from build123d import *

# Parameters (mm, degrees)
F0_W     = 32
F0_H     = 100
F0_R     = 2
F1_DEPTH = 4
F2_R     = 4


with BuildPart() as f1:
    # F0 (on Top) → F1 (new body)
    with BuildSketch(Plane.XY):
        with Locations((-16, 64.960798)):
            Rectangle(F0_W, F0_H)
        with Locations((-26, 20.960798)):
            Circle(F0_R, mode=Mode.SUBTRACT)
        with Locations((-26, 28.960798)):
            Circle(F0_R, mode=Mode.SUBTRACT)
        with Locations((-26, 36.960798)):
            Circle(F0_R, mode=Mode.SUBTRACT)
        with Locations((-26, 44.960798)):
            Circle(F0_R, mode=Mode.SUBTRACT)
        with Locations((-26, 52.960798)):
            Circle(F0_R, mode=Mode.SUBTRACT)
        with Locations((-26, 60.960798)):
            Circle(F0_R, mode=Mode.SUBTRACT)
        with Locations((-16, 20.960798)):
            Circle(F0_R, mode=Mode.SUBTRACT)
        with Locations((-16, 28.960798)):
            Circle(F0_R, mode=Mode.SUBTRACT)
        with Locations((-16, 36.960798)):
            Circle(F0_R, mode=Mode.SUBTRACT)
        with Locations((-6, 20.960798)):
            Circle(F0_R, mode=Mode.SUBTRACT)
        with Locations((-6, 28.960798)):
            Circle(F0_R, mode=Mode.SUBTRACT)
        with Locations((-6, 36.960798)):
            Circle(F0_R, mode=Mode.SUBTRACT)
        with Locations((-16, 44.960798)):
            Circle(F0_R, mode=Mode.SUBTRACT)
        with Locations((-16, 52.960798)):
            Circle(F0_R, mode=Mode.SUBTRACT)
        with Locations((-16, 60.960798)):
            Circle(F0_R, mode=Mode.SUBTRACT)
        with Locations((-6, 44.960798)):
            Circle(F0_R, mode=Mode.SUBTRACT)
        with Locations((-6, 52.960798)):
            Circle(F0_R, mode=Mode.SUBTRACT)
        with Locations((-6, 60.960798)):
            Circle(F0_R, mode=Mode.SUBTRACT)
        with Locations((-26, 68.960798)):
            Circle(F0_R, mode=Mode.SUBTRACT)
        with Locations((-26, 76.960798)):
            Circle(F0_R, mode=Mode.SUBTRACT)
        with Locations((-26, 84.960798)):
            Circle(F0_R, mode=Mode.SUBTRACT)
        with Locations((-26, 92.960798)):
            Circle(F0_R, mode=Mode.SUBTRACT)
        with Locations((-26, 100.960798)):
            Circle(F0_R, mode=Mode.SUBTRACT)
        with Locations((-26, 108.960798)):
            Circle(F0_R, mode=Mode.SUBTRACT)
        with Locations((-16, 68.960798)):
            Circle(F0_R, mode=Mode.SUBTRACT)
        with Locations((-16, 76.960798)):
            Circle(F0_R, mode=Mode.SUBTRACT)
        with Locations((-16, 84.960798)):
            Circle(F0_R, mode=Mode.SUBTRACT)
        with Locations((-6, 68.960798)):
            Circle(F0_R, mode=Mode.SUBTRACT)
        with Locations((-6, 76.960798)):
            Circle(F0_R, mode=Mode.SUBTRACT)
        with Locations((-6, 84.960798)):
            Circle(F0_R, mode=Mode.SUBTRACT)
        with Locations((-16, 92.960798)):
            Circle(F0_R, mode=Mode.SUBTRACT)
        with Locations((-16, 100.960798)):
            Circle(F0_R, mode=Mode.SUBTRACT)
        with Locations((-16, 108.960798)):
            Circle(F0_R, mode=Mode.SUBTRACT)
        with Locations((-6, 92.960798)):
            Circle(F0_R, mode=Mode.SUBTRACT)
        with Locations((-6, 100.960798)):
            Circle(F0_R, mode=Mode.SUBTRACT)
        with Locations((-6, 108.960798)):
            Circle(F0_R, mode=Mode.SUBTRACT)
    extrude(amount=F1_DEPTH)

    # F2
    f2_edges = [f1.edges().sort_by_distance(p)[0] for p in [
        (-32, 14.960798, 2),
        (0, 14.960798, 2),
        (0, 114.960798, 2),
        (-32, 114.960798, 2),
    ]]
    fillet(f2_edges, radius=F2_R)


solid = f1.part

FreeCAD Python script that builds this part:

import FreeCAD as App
import Part
import Sketcher

V = App.Vector
Q = App.Units.Quantity


def edges_at(feature, points):
    """Names of the edges that pass closest to the given points."""
    edges = feature.Shape.Edges
    near = lambda p: min(range(len(edges)), key=lambda i: edges[i].distToShape(Part.Vertex(*p))[0])
    return sorted({f"Edge{near(p) + 1}" for p in points})


def add_polygon(sketch, points):
    """Adds a closed chain of lines whose ends are joined by coincident constraints."""
    first, n = sketch.GeometryCount, len(points)
    for a, b in zip(points, points[1:] + points[:1]):
        sketch.addGeometry(Part.LineSegment(App.Vector(*a, 0), App.Vector(*b, 0)), False)
    for i in range(n):
        sketch.addConstraint(Sketcher.Constraint("Coincident", first + i, 2, first + (i + 1) % n, 1))

doc = App.newDocument("Part")
params = doc.addObject("Spreadsheet::Sheet", "Params")
for row, (alias, value) in enumerate([
    ("sketch1_diameter", "4 mm"),
    ("sketch1_width", "32 mm"),
    ("sketch1_height", "100 mm"),
    ("pad1_length", "4 mm"),
    ("fillet_radius", "4 mm"),
], start=1):
    params.set(f"A{row}", alias)
    params.set(f"B{row}", "=" + value)
    params.setAlias(f"B{row}", alias)

body = doc.addObject("PartDesign::Body", "Body")

# Sketch on XY plane
sketch1 = doc.addObject("Sketcher::SketchObject", "Sketch")
body.addObject(sketch1)
sketch1.AttachmentSupport = (doc.XY_Plane, [""])
sketch1.MapMode = "FlatFace"
add_polygon(sketch1, [(-32, 115), (-32, 15), (0, 15), (0, 115)])  # lines 0-3
sketch1.addGeometry(Part.Circle(V(-26, 21, 0), V(0, 0, 1), 2), False)  # 4
sketch1.addGeometry(Part.Circle(V(-26, 29, 0), V(0, 0, 1), 2), False)  # 5
sketch1.addGeometry(Part.Circle(V(-26, 37, 0), V(0, 0, 1), 2), False)  # 6
sketch1.addGeometry(Part.Circle(V(-26, 45, 0), V(0, 0, 1), 2), False)  # 7
sketch1.addGeometry(Part.Circle(V(-26, 53, 0), V(0, 0, 1), 2), False)  # 8
sketch1.addGeometry(Part.Circle(V(-26, 61, 0), V(0, 0, 1), 2), False)  # 9
sketch1.addGeometry(Part.Circle(V(-16, 21, 0), V(0, 0, 1), 2), False)  # 10
sketch1.addGeometry(Part.Circle(V(-16, 29, 0), V(0, 0, 1), 2), False)  # 11
sketch1.addGeometry(Part.Circle(V(-16, 37, 0), V(0, 0, 1), 2), False)  # 12
sketch1.addGeometry(Part.Circle(V(-6, 21, 0), V(0, 0, 1), 2), False)  # 13
sketch1.addGeometry(Part.Circle(V(-6, 29, 0), V(0, 0, 1), 2), False)  # 14
sketch1.addGeometry(Part.Circle(V(-6, 37, 0), V(0, 0, 1), 2), False)  # 15
sketch1.addGeometry(Part.Circle(V(-16, 45, 0), V(0, 0, 1), 2), False)  # 16
sketch1.addGeometry(Part.Circle(V(-16, 53, 0), V(0, 0, 1), 2), False)  # 17
sketch1.addGeometry(Part.Circle(V(-16, 61, 0), V(0, 0, 1), 2), False)  # 18
sketch1.addGeometry(Part.Circle(V(-6, 45, 0), V(0, 0, 1), 2), False)  # 19
sketch1.addGeometry(Part.Circle(V(-6, 53, 0), V(0, 0, 1), 2), False)  # 20
sketch1.addGeometry(Part.Circle(V(-6, 61, 0), V(0, 0, 1), 2), False)  # 21
sketch1.addGeometry(Part.Circle(V(-26, 69, 0), V(0, 0, 1), 2), False)  # 22
sketch1.addGeometry(Part.Circle(V(-26, 77, 0), V(0, 0, 1), 2), False)  # 23
sketch1.addGeometry(Part.Circle(V(-26, 85, 0), V(0, 0, 1), 2), False)  # 24
sketch1.addGeometry(Part.Circle(V(-26, 93, 0), V(0, 0, 1), 2), False)  # 25
sketch1.addGeometry(Part.Circle(V(-26, 101, 0), V(0, 0, 1), 2), False)  # 26
sketch1.addGeometry(Part.Circle(V(-26, 109, 0), V(0, 0, 1), 2), False)  # 27
sketch1.addGeometry(Part.Circle(V(-16, 69, 0), V(0, 0, 1), 2), False)  # 28
sketch1.addGeometry(Part.Circle(V(-16, 77, 0), V(0, 0, 1), 2), False)  # 29
sketch1.addGeometry(Part.Circle(V(-16, 85, 0), V(0, 0, 1), 2), False)  # 30
sketch1.addGeometry(Part.Circle(V(-6, 69, 0), V(0, 0, 1), 2), False)  # 31
sketch1.addGeometry(Part.Circle(V(-6, 77, 0), V(0, 0, 1), 2), False)  # 32
sketch1.addGeometry(Part.Circle(V(-6, 85, 0), V(0, 0, 1), 2), False)  # 33
sketch1.addGeometry(Part.Circle(V(-16, 93, 0), V(0, 0, 1), 2), False)  # 34
sketch1.addGeometry(Part.Circle(V(-16, 101, 0), V(0, 0, 1), 2), False)  # 35
sketch1.addGeometry(Part.Circle(V(-16, 109, 0), V(0, 0, 1), 2), False)  # 36
sketch1.addGeometry(Part.Circle(V(-6, 93, 0), V(0, 0, 1), 2), False)  # 37
sketch1.addGeometry(Part.Circle(V(-6, 101, 0), V(0, 0, 1), 2), False)  # 38
sketch1.addGeometry(Part.Circle(V(-6, 109, 0), V(0, 0, 1), 2), False)  # 39
sketch1.addConstraint([
    Sketcher.Constraint("Vertical", 0),
    Sketcher.Constraint("Horizontal", 1),
    Sketcher.Constraint("Vertical", 2),
    Sketcher.Constraint("Horizontal", 3),
    Sketcher.Constraint("Equal", 4, 5),
    Sketcher.Constraint("Equal", 5, 6),
    Sketcher.Constraint("Equal", 6, 7),
    Sketcher.Constraint("Equal", 7, 8),
    Sketcher.Constraint("Equal", 8, 9),
    Sketcher.Constraint("Equal", 9, 10),
    Sketcher.Constraint("Equal", 10, 11),
    Sketcher.Constraint("Equal", 11, 12),
    Sketcher.Constraint("Equal", 12, 13),
    Sketcher.Constraint("Equal", 13, 14),
    Sketcher.Constraint("Equal", 14, 15),
    Sketcher.Constraint("Equal", 15, 16),
    Sketcher.Constraint("Equal", 16, 17),
    Sketcher.Constraint("Equal", 17, 18),
    Sketcher.Constraint("Equal", 18, 19),
    Sketcher.Constraint("Equal", 19, 20),
    Sketcher.Constraint("Equal", 20, 21),
    Sketcher.Constraint("Equal", 21, 22),
    Sketcher.Constraint("Equal", 22, 23),
    Sketcher.Constraint("Equal", 23, 24),
    Sketcher.Constraint("Equal", 24, 25),
    Sketcher.Constraint("Equal", 25, 26),
    Sketcher.Constraint("Equal", 26, 27),
    Sketcher.Constraint("Equal", 27, 28),
    Sketcher.Constraint("Equal", 28, 29),
    Sketcher.Constraint("Equal", 29, 30),
    Sketcher.Constraint("Equal", 30, 31),
    Sketcher.Constraint("Equal", 31, 32),
    Sketcher.Constraint("Equal", 32, 33),
    Sketcher.Constraint("Equal", 33, 34),
    Sketcher.Constraint("Equal", 34, 35),
    Sketcher.Constraint("Equal", 35, 36),
    Sketcher.Constraint("Equal", 36, 37),
    Sketcher.Constraint("Equal", 37, 38),
    Sketcher.Constraint("Equal", 38, 39),
    Sketcher.Constraint("PointOnObject", 1, 2, -2),
    Sketcher.Constraint("Horizontal", 4, 3, 10, 3),
    Sketcher.Constraint("Horizontal", 5, 3, 11, 3),
    Sketcher.Constraint("Horizontal", 6, 3, 12, 3),
    Sketcher.Constraint("Horizontal", 10, 3, 13, 3),
    Sketcher.Constraint("Horizontal", 11, 3, 14, 3),
    Sketcher.Constraint("Horizontal", 12, 3, 15, 3),
    Sketcher.Constraint("Horizontal", 7, 3, 16, 3),
    Sketcher.Constraint("Horizontal", 8, 3, 17, 3),
    Sketcher.Constraint("Horizontal", 9, 3, 18, 3),
    Sketcher.Constraint("Horizontal", 16, 3, 19, 3),
    Sketcher.Constraint("Horizontal", 17, 3, 20, 3),
    Sketcher.Constraint("Horizontal", 18, 3, 21, 3),
    Sketcher.Constraint("Horizontal", 22, 3, 28, 3),
    Sketcher.Constraint("Horizontal", 23, 3, 29, 3),
    Sketcher.Constraint("Horizontal", 24, 3, 30, 3),
    Sketcher.Constraint("Horizontal", 28, 3, 31, 3),
    Sketcher.Constraint("Horizontal", 29, 3, 32, 3),
    Sketcher.Constraint("Horizontal", 30, 3, 33, 3),
    Sketcher.Constraint("Horizontal", 25, 3, 34, 3),
    Sketcher.Constraint("Horizontal", 26, 3, 35, 3),
    Sketcher.Constraint("Horizontal", 27, 3, 36, 3),
    Sketcher.Constraint("Horizontal", 34, 3, 37, 3),
    Sketcher.Constraint("Horizontal", 35, 3, 38, 3),
    Sketcher.Constraint("Horizontal", 36, 3, 39, 3),
    Sketcher.Constraint("Vertical", 4, 3, 5, 3),
    Sketcher.Constraint("Vertical", 5, 3, 6, 3),
    Sketcher.Constraint("Vertical", 6, 3, 7, 3),
    Sketcher.Constraint("Vertical", 7, 3, 8, 3),
    Sketcher.Constraint("Vertical", 8, 3, 9, 3),
    Sketcher.Constraint("Vertical", 10, 3, 11, 3),
    Sketcher.Constraint("Vertical", 11, 3, 12, 3),
    Sketcher.Constraint("Vertical", 13, 3, 14, 3),
    Sketcher.Constraint("Vertical", 14, 3, 15, 3),
    Sketcher.Constraint("Vertical", 12, 3, 16, 3),
    Sketcher.Constraint("Vertical", 16, 3, 17, 3),
    Sketcher.Constraint("Vertical", 17, 3, 18, 3),
    Sketcher.Constraint("Vertical", 15, 3, 19, 3),
    Sketcher.Constraint("Vertical", 19, 3, 20, 3),
    Sketcher.Constraint("Vertical", 20, 3, 21, 3),
    Sketcher.Constraint("Vertical", 9, 3, 22, 3),
    Sketcher.Constraint("Vertical", 22, 3, 23, 3),
    Sketcher.Constraint("Vertical", 23, 3, 24, 3),
    Sketcher.Constraint("Vertical", 24, 3, 25, 3),
    Sketcher.Constraint("Vertical", 25, 3, 26, 3),
    Sketcher.Constraint("Vertical", 26, 3, 27, 3),
    Sketcher.Constraint("Vertical", 18, 3, 28, 3),
    Sketcher.Constraint("Vertical", 28, 3, 29, 3),
    Sketcher.Constraint("Vertical", 29, 3, 30, 3),
    Sketcher.Constraint("Vertical", 21, 3, 31, 3),
    Sketcher.Constraint("Vertical", 31, 3, 32, 3),
    Sketcher.Constraint("Vertical", 32, 3, 33, 3),
    Sketcher.Constraint("Vertical", 30, 3, 34, 3),
    Sketcher.Constraint("Vertical", 34, 3, 35, 3),
    Sketcher.Constraint("Vertical", 35, 3, 36, 3),
    Sketcher.Constraint("Vertical", 33, 3, 37, 3),
    Sketcher.Constraint("Vertical", 37, 3, 38, 3),
    Sketcher.Constraint("Vertical", 38, 3, 39, 3),
    Sketcher.Constraint("Diameter", 4, Q("4 mm")),
    Sketcher.Constraint("DistanceX", 1, 1, 1, 2, Q("32 mm")),
    Sketcher.Constraint("DistanceY", 0, 2, 0, 1, Q("100 mm")),
    Sketcher.Constraint("DistanceX", 4, 3, -1, 1, Q("26 mm")),
    Sketcher.Constraint("DistanceX", 10, 3, -1, 1, Q("16 mm")),
    Sketcher.Constraint("DistanceX", 13, 3, -1, 1, Q("6 mm")),
    Sketcher.Constraint("DistanceY", 4, 3, 5, 3, Q("8 mm")),
    Sketcher.Constraint("DistanceY", 5, 3, 6, 3, Q("8 mm")),
    Sketcher.Constraint("DistanceY", 6, 3, 7, 3, Q("8 mm")),
    Sketcher.Constraint("DistanceY", 7, 3, 8, 3, Q("8 mm")),
    Sketcher.Constraint("DistanceY", 8, 3, 9, 3, Q("8 mm")),
    Sketcher.Constraint("DistanceY", 9, 3, 22, 3, Q("8 mm")),
    Sketcher.Constraint("DistanceY", 22, 3, 23, 3, Q("8 mm")),
    Sketcher.Constraint("DistanceY", 23, 3, 24, 3, Q("8 mm")),
    Sketcher.Constraint("DistanceY", 24, 3, 25, 3, Q("8 mm")),
    Sketcher.Constraint("DistanceY", 25, 3, 26, 3, Q("8 mm")),
    Sketcher.Constraint("DistanceY", 26, 3, 27, 3, Q("8 mm")),
    Sketcher.Constraint("DistanceY", 0, 2, 4, 3, Q("6 mm")),
    Sketcher.Constraint("DistanceY", -1, 1, 4, 3, Q("20.960798 mm")),
])
sketch1.setExpression("Constraints[101]", "Params.sketch1_diameter")
sketch1.setExpression("Constraints[102]", "Params.sketch1_width")
sketch1.setExpression("Constraints[103]", "Params.sketch1_height")
pad1 = doc.addObject("PartDesign::Pad", "Pad")
body.addObject(pad1)
pad1.Profile = sketch1
pad1.setExpression("Length", "Params.pad1_length")
doc.recompute()

fillet = doc.addObject("PartDesign::Fillet", "Fillet")
body.addObject(fillet)
fillet.Base = (pad1, edges_at(pad1, [
    (-32, 14.961, 2),
    (0, 14.961, 2),
    (0, 114.961, 2),
    (-32, 114.961, 2),
]))
fillet.setExpression("Radius", "Params.fillet_radius")

doc.recompute()
